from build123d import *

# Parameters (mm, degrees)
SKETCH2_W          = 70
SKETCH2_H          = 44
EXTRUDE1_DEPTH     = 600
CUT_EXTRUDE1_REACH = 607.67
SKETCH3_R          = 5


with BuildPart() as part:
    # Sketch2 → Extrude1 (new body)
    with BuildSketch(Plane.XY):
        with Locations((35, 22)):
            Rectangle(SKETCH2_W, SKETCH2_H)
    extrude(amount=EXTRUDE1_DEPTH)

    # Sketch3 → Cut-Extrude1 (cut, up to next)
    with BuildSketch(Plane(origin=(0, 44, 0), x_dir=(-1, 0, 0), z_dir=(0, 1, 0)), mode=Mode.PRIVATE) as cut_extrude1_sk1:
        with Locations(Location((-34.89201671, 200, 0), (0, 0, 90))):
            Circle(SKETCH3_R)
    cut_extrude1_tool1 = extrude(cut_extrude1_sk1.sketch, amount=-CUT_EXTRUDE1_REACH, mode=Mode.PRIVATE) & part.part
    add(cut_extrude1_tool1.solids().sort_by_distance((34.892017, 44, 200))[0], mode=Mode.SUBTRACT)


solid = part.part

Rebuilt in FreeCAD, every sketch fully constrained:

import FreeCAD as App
import Part
import Sketcher

doc = App.newDocument("Part")
params = doc.addObject("Spreadsheet::Sheet", "Params")
for row, (alias, value) in enumerate([
    ("sketch1_width", "70 mm"),
    ("sketch1_height", "44 mm"),
    ("pad1_length", "600 mm"),
    ("sketch2_diameter", "10 mm"),
], start=1):
    params.set(f"A{row}", alias)
    params.set(f"B{row}", "=" + value)
    params.setAlias(f"B{row}", alias)

body = doc.addObject("PartDesign::Body", "Body")

# Sketch on XY plane
sketch1 = body.newObject("Sketcher::SketchObject", "Sketch")
sketch1.AttachmentSupport = (doc.getObject("XY_Plane"), [""])
sketch1.MapMode = "FlatFace"
sketch1.addGeometry([
    Part.LineSegment(App.Vector(0, 44, 0), App.Vector(0, 0, 0)),
    Part.LineSegment(App.Vector(0, 0, 0), App.Vector(70, 0, 0)),
    Part.LineSegment(App.Vector(70, 0, 0), App.Vector(70, 44, 0)),
    Part.LineSegment(App.Vector(70, 44, 0), App.Vector(0, 44, 0)),
], False)
sketch1.addConstraint([
    Sketcher.Constraint("Coincident", 0, 2, 1, 1),
    Sketcher.Constraint("Coincident", 1, 2, 2, 1),
    Sketcher.Constraint("Coincident", 2, 2, 3, 1),
    Sketcher.Constraint("Coincident", 3, 2, 0, 1),
    Sketcher.Constraint("Vertical", 0),
    Sketcher.Constraint("Horizontal", 1),
    Sketcher.Constraint("Vertical", 2),
    Sketcher.Constraint("Horizontal", 3),
    Sketcher.Constraint("Coincident", 0, 2, -1, 1),
    Sketcher.Constraint("DistanceX", 1, 1, 1, 2, 70.0),
    Sketcher.Constraint("DistanceY", 0, 2, 0, 1, 44.0),
])
sketch1.setExpression("Constraints[9]", "Params.sketch1_width")
sketch1.setExpression("Constraints[10]", "Params.sketch1_height")
pad1 = body.newObject("PartDesign::Pad", "Pad")
pad1.Profile = sketch1
pad1.setExpression("Length", "Params.pad1_length")

# Sketch on XZ plane
sketch2 = body.newObject("Sketcher::SketchObject", "Sketch001")
sketch2.AttachmentSupport = (doc.getObject("XZ_Plane"), [""])
sketch2.MapMode = "FlatFace"
sketch2.AttachmentOffset = App.Placement(App.Vector(0, 0, -44), App.Rotation())
sketch2.addGeometry(Part.Circle(App.Vector(35, 200, 0), App.Vector(0, 0, 1), 5), False)
sketch2.addConstraint([
    Sketcher.Constraint("Diameter", 0, 10.0),
    Sketcher.Constraint("DistanceY", -1, 1, 0, 3, 200.0),
    Sketcher.Constraint("DistanceX", -1, 1, 0, 3, 34.892017),
])
sketch2.setExpression("Constraints[0]", "Params.sketch2_diameter")
pocket1 = body.newObject("PartDesign::Pocket", "Pocket")
pocket1.Profile = sketch2
pocket1.Type = "UpToFirst"
pocket1.Reversed = True

doc.recompute()
